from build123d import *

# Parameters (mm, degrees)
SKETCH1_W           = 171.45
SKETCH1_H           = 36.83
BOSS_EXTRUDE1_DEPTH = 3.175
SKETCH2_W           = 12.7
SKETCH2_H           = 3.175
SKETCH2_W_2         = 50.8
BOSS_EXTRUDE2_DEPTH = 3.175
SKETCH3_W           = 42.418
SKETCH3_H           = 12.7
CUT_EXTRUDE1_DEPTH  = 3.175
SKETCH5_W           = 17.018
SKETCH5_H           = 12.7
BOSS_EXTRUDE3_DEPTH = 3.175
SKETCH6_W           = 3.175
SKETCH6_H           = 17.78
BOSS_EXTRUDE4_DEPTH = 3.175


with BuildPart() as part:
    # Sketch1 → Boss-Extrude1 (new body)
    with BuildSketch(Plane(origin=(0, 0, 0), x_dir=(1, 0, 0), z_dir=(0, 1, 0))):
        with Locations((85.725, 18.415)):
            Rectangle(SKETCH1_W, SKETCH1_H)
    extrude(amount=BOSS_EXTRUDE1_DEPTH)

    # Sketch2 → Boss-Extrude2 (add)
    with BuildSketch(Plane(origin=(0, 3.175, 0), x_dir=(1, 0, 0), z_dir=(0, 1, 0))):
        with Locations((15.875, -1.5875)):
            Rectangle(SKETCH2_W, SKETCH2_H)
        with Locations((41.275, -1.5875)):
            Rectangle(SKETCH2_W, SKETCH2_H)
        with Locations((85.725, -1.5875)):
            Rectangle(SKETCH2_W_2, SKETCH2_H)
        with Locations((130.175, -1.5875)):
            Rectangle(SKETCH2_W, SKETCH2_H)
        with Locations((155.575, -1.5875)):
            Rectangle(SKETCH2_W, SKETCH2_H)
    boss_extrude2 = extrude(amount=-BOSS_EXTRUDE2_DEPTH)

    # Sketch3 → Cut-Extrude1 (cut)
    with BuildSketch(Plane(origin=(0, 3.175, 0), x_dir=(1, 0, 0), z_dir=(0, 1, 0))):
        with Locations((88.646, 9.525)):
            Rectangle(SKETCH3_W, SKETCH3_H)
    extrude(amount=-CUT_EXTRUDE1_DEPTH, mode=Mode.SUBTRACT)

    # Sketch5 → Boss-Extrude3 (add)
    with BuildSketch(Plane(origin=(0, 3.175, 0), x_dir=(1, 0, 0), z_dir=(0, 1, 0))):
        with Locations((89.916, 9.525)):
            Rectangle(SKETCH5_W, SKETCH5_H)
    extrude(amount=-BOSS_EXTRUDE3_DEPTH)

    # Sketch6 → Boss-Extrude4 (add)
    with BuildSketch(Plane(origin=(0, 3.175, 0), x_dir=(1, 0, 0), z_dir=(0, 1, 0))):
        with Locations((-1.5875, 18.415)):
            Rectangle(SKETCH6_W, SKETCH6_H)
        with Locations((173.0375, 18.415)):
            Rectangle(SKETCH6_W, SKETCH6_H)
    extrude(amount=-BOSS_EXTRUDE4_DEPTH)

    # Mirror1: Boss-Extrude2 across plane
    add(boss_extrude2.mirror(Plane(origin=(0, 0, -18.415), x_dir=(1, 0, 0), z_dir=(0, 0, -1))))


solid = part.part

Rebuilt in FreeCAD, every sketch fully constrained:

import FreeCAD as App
import Part
import Sketcher
from FreeCAD import Vector
Q = App.Units.Quantity

doc = App.newDocument("Part")
body = doc.addObject("PartDesign::Body", "Body")

# Sketch on XZ plane
sketch1 = body.newObject("Sketcher::SketchObject", "Sketch")
sketch1.AttachmentSupport = (doc.getObject("XZ_Plane"), [""])
sketch1.MapMode = "FlatFace"
sketch1.addGeometry(Part.LineSegment(Vector(0, -36.83, 0), Vector(0, 0, 0)), False)
sketch1.addGeometry(Part.LineSegment(Vector(0, 0, 0), Vector(171.45, 0, 0)), False)
sketch1.addGeometry(Part.LineSegment(Vector(171.45, 0, 0), Vector(171.45, -36.83, 0)), False)
sketch1.addGeometry(Part.LineSegment(Vector(171.45, -36.83, 0), Vector(0, -36.83, 0)), False)
sketch1.addConstraint(Sketcher.Constraint("Coincident", 0, 2, 1, 1))
sketch1.addConstraint(Sketcher.Constraint("Coincident", 1, 2, 2, 1))
sketch1.addConstraint(Sketcher.Constraint("Coincident", 2, 2, 3, 1))
sketch1.addConstraint(Sketcher.Constraint("Coincident", 3, 2, 0, 1))
sketch1.addConstraint(Sketcher.Constraint("Vertical", 0))
sketch1.addConstraint(Sketcher.Constraint("Horizontal", 1))
sketch1.addConstraint(Sketcher.Constraint("Vertical", 2))
sketch1.addConstraint(Sketcher.Constraint("Horizontal", 3))
sketch1.addConstraint(Sketcher.Constraint("Coincident", 0, 2, -1, 1))
sketch1.addConstraint(Sketcher.Constraint("DistanceX", 1, 1, 1, 2, Q("6.75 in")))
sketch1.addConstraint(Sketcher.Constraint("DistanceY", 0, 1, 0, 2, Q("1.45 in")))
pad1 = body.newObject("PartDesign::Pad", "Pad")
pad1.Profile = sketch1
pad1.Length = Q("0.125 in")
pad1.Reversed = True

# Sketch on XZ plane
sketch2 = body.newObject("Sketcher::SketchObject", "Sketch001")
sketch2.AttachmentSupport = (doc.getObject("XZ_Plane"), [""])
sketch2.MapMode = "FlatFace"
sketch2.AttachmentOffset = App.Placement(Vector(0, 0, -0.125 * 25.4), App.Rotation())
sketch2.addGeometry(Part.LineSegment(Vector(9.525, 0, 0), Vector(9.525, 3.175, 0)), False)
sketch2.addGeometry(Part.LineSegment(Vector(9.525, 3.175, 0), Vector(22.225, 3.175, 0)), False)
sketch2.addGeometry(Part.LineSegment(Vector(22.225, 3.175, 0), Vector(22.225, 0, 0)), False)
sketch2.addGeometry(Part.LineSegment(Vector(22.225, 0, 0), Vector(9.525, 0, 0)), False)
sketch2.addGeometry(Part.LineSegment(Vector(34.925, 0, 0), Vector(34.925, 3.175, 0)), False)
sketch2.addGeometry(Part.LineSegment(Vector(34.925, 3.175, 0), Vector(47.625, 3.175, 0)), False)
sketch2.addGeometry(Part.LineSegment(Vector(47.625, 3.175, 0), Vector(47.625, 0, 0)), False)
sketch2.addGeometry(Part.LineSegment(Vector(47.625, 0, 0), Vector(34.925, 0, 0)), False)
sketch2.addGeometry(Part.LineSegment(Vector(60.325, 0, 0), Vector(60.325, 3.175, 0)), False)
sketch2.addGeometry(Part.LineSegment(Vector(60.325, 3.175, 0), Vector(111.125, 3.175, 0)), False)
sketch2.addGeometry(Part.LineSegment(Vector(111.125, 3.175, 0), Vector(111.125, 0, 0)), False)
sketch2.addGeometry(Part.LineSegment(Vector(111.125, 0, 0), Vector(60.325, 0, 0)), False)
sketch2.addGeometry(Part.LineSegment(Vector(123.825, 0, 0), Vector(123.825, 3.175, 0)), False)
sketch2.addGeometry(Part.LineSegment(Vector(123.825, 3.175, 0), Vector(136.525, 3.175, 0)), False)
sketch2.addGeometry(Part.LineSegment(Vector(136.525, 3.175, 0), Vector(136.525, 0, 0)), False)
sketch2.addGeometry(Part.LineSegment(Vector(136.525, 0, 0), Vector(123.825, 0, 0)), False)
sketch2.addGeometry(Part.LineSegment(Vector(149.225, 0, 0), Vector(149.225, 3.175, 0)), False)
sketch2.addGeometry(Part.LineSegment(Vector(149.225, 3.175, 0), Vector(161.925, 3.175, 0)), False)
sketch2.addGeometry(Part.LineSegment(Vector(161.925, 3.175, 0), Vector(161.925, 0, 0)), False)
sketch2.addGeometry(Part.LineSegment(Vector(161.925, 0, 0), Vector(149.225, 0, 0)), False)
sketch2.addConstraint(Sketcher.Constraint("Coincident", 0, 2, 1, 1))
sketch2.addConstraint(Sketcher.Constraint("Coincident", 1, 2, 2, 1))
sketch2.addConstraint(Sketcher.Constraint("Coincident", 2, 2, 3, 1))
sketch2.addConstraint(Sketcher.Constraint("Coincident", 3, 2, 0, 1))
sketch2.addConstraint(Sketcher.Constraint("Coincident", 4, 2, 5, 1))
sketch2.addConstraint(Sketcher.Constraint("Coincident", 5, 2, 6, 1))
sketch2.addConstraint(Sketcher.Constraint("Coincident", 6, 2, 7, 1))
sketch2.addConstraint(Sketcher.Constraint("Coincident", 7, 2, 4, 1))
sketch2.addConstraint(Sketcher.Constraint("Coincident", 8, 2, 9, 1))
sketch2.addConstraint(Sketcher.Constraint("Coincident", 9, 2, 10, 1))
sketch2.addConstraint(Sketcher.Constraint("Coincident", 10, 2, 11, 1))
sketch2.addConstraint(Sketcher.Constraint("Coincident", 11, 2, 8, 1))
sketch2.addConstraint(Sketcher.Constraint("Coincident", 12, 2, 13, 1))
sketch2.addConstraint(Sketcher.Constraint("Coincident", 13, 2, 14, 1))
sketch2.addConstraint(Sketcher.Constraint("Coincident", 14, 2, 15, 1))
sketch2.addConstraint(Sketcher.Constraint("Coincident", 15, 2, 12, 1))
sketch2.addConstraint(Sketcher.Constraint("Coincident", 16, 2, 17, 1))
sketch2.addConstraint(Sketcher.Constraint("Coincident", 17, 2, 18, 1))
sketch2.addConstraint(Sketcher.Constraint("Coincident", 18, 2, 19, 1))
sketch2.addConstraint(Sketcher.Constraint("Coincident", 19, 2, 16, 1))
sketch2.addConstraint(Sketcher.Constraint("Vertical", 0))
sketch2.addConstraint(Sketcher.Constraint("Horizontal", 1))
sketch2.addConstraint(Sketcher.Constraint("Vertical", 2))
sketch2.addConstraint(Sketcher.Constraint("Horizontal", 3))
sketch2.addConstraint(Sketcher.Constraint("Vertical", 4))
sketch2.addConstraint(Sketcher.Constraint("Horizontal", 5))
sketch2.addConstraint(Sketcher.Constraint("Vertical", 6))
sketch2.addConstraint(Sketcher.Constraint("Horizontal", 7))
sketch2.addConstraint(Sketcher.Constraint("Vertical", 8))
sketch2.addConstraint(Sketcher.Constraint("Horizontal", 9))
sketch2.addConstraint(Sketcher.Constraint("Vertical", 10))
sketch2.addConstraint(Sketcher.Constraint("Horizontal", 11))
sketch2.addConstraint(Sketcher.Constraint("Vertical", 12))
sketch2.addConstraint(Sketcher.Constraint("Horizontal", 13))
sketch2.addConstraint(Sketcher.Constraint("Vertical", 14))
sketch2.addConstraint(Sketcher.Constraint("Horizontal", 15))
sketch2.addConstraint(Sketcher.Constraint("Vertical", 16))
sketch2.addConstraint(Sketcher.Constraint("Horizontal", 17))
sketch2.addConstraint(Sketcher.Constraint("Vertical", 18))
sketch2.addConstraint(Sketcher.Constraint("Horizontal", 19))
sketch2.addConstraint(Sketcher.Constraint("PointOnObject", 2, 2, -1))
sketch2.addConstraint(Sketcher.Constraint("PointOnObject", 6, 2, -1))
sketch2.addConstraint(Sketcher.Constraint("PointOnObject", 10, 2, -1))
sketch2.addConstraint(Sketcher.Constraint("PointOnObject", 14, 2, -1))
sketch2.addConstraint(Sketcher.Constraint("PointOnObject", 18, 2, -1))
sketch2.addConstraint(Sketcher.Constraint("Horizontal", 1, 2, 4, 2))
sketch2.addConstraint(Sketcher.Constraint("Horizontal", 5, 2, 8, 2))
sketch2.addConstraint(Sketcher.Constraint("Horizontal", 9, 2, 12, 2))
sketch2.addConstraint(Sketcher.Constraint("Horizontal", 13, 2, 16, 2))
sketch2.addConstraint(Sketcher.Constraint("Equal", 3, 5))
sketch2.addConstraint(Sketcher.Constraint("Equal", 7, 13))
sketch2.addConstraint(Sketcher.Constraint("Equal", 15, 17))
sketch2.addConstraint(Sketcher.Constraint("DistanceX", 9, 1, 9, 2, Q("2 in")))
sketch2.addConstraint(Sketcher.Constraint("DistanceX", 1, 1, 1, 2, Q("0.5 in")))
sketch2.addConstraint(Sketcher.Constraint("DistanceX", 0, 2, 4, 2, Q("1 in")))
sketch2.addConstraint(Sketcher.Constraint("DistanceX", 4, 2, 8, 2, Q("1 in")))
sketch2.addConstraint(Sketcher.Constraint("DistanceX", 5, 2, 12, 2, Q("3 in")))
sketch2.addConstraint(Sketcher.Constraint("DistanceX", 12, 2, 16, 2, Q("1 in")))
sketch2.addConstraint(Sketcher.Constraint("DistanceY", 0, 1, 0, 2, Q("0.125 in")))
sketch2.addConstraint(Sketcher.Constraint("DistanceX", -1, 1, 0, 2, Q("0.375 in")))
pad2 = body.newObject("PartDesign::Pad", "Pad001")
pad2.Profile = sketch2
pad2.Length = Q("0.125 in")

# Sketch on XZ plane
sketch3 = body.newObject("Sketcher::SketchObject", "Sketch002")
sketch3.AttachmentSupport = (doc.getObject("XZ_Plane"), [""])
sketch3.MapMode = "FlatFace"
sketch3.AttachmentOffset = App.Placement(Vector(0, 0, -0.125 * 25.4), App.Rotation())
sketch3.addGeometry(Part.LineSegment(Vector(67.437, -15.875, 0), Vector(67.437, -3.175, 0)), False)
sketch3.addGeometry(Part.LineSegment(Vector(67.437, -3.175, 0), Vector(109.855, -3.175, 0)), False)
sketch3.addGeometry(Part.LineSegment(Vector(109.855, -3.175, 0), Vector(109.855, -15.875, 0)), False)
sketch3.addGeometry(Part.LineSegment(Vector(109.855, -15.875, 0), Vector(67.437, -15.875, 0)), False)
sketch3.addConstraint(Sketcher.Constraint("Coincident", 0, 2, 1, 1))
sketch3.addConstraint(Sketcher.Constraint("Coincident", 1, 2, 2, 1))
sketch3.addConstraint(Sketcher.Constraint("Coincident", 2, 2, 3, 1))
sketch3.addConstraint(Sketcher.Constraint("Coincident", 3, 2, 0, 1))
sketch3.addConstraint(Sketcher.Constraint("Vertical", 0))
sketch3.addConstraint(Sketcher.Constraint("Horizontal", 1))
sketch3.addConstraint(Sketcher.Constraint("Vertical", 2))
sketch3.addConstraint(Sketcher.Constraint("Horizontal", 3))
sketch3.addConstraint(Sketcher.Constraint("DistanceY", 0, 1, 0, 2, Q("0.5 in")))
sketch3.addConstraint(Sketcher.Constraint("DistanceX", 1, 1, 1, 2, Q("1.67 in")))
sketch3.addConstraint(Sketcher.Constraint("DistanceX", -1, 1, 0, 2, Q("2.655 in")))
sketch3.addConstraint(Sketcher.Constraint("DistanceY", 0, 2, -1, 1, Q("0.125 in")))
pocket1 = body.newObject("PartDesign::Pocket", "Pocket")
pocket1.Profile = sketch3
pocket1.Length = Q("0.125 in")
pocket1.Reversed = True

# Sketch on XZ plane
sketch4 = body.newObject("Sketcher::SketchObject", "Sketch003")
sketch4.AttachmentSupport = (doc.getObject("XZ_Plane"), [""])
sketch4.MapMode = "FlatFace"
sketch4.AttachmentOffset = App.Placement(Vector(0, 0, -0.125 * 25.4), App.Rotation())
sketch4.addGeometry(Part.LineSegment(Vector(81.407, -15.875, 0), Vector(81.407, -3.175, 0)), False)
sketch4.addGeometry(Part.LineSegment(Vector(81.407, -3.175, 0), Vector(98.425, -3.175, 0)), False)
sketch4.addGeometry(Part.LineSegment(Vector(98.425, -3.175, 0), Vector(98.425, -15.875, 0)), False)
sketch4.addGeometry(Part.LineSegment(Vector(98.425, -15.875, 0), Vector(81.407, -15.875, 0)), False)
sketch4.addConstraint(Sketcher.Constraint("Coincident", 0, 2, 1, 1))
sketch4.addConstraint(Sketcher.Constraint("Coincident", 1, 2, 2, 1))
sketch4.addConstraint(Sketcher.Constraint("Coincident", 2, 2, 3, 1))
sketch4.addConstraint(Sketcher.Constraint("Coincident", 3, 2, 0, 1))
sketch4.addConstraint(Sketcher.Constraint("Vertical", 0))
sketch4.addConstraint(Sketcher.Constraint("Horizontal", 1))
sketch4.addConstraint(Sketcher.Constraint("Vertical", 2))
sketch4.addConstraint(Sketcher.Constraint("Horizontal", 3))
sketch4.addConstraint(Sketcher.Constraint("DistanceY", 0, 1, 0, 2, Q("0.5 in")))
sketch4.addConstraint(Sketcher.Constraint("DistanceX", 1, 1, 1, 2, Q("0.67 in")))
sketch4.addConstraint(Sketcher.Constraint("DistanceX", -1, 1, 0, 2, Q("3.205 in")))
sketch4.addConstraint(Sketcher.Constraint("DistanceY", 0, 2, -1, 1, Q("0.125 in")))
pad3 = body.newObject("PartDesign::Pad", "Pad002")
pad3.Profile = sketch4
pad3.Length = Q("0.125 in")

# Sketch on XZ plane
sketch5 = body.newObject("Sketcher::SketchObject", "Sketch004")
sketch5.AttachmentSupport = (doc.getObject("XZ_Plane"), [""])
sketch5.MapMode = "FlatFace"
sketch5.AttachmentOffset = App.Placement(Vector(0, 0, -0.125 * 25.4), App.Rotation())
sketch5.addGeometry(Part.LineSegment(Vector(-3.175, -27.305, 0), Vector(-3.175, -9.525, 0)), False)
sketch5.addGeometry(Part.LineSegment(Vector(-3.175, -9.525, 0), Vector(0, -9.525, 0)), False)
sketch5.addGeometry(Part.LineSegment(Vector(0, -9.525, 0), Vector(0, -27.305, 0)), False)
sketch5.addGeometry(Part.LineSegment(Vector(0, -27.305, 0), Vector(-3.175, -27.305, 0)), False)
sketch5.addGeometry(Part.LineSegment(Vector(171.45, -27.305, 0), Vector(171.45, -9.525, 0)), False)
sketch5.addGeometry(Part.LineSegment(Vector(171.45, -9.525, 0), Vector(174.625, -9.525, 0)), False)
sketch5.addGeometry(Part.LineSegment(Vector(174.625, -9.525, 0), Vector(174.625, -27.305, 0)), False)
sketch5.addGeometry(Part.LineSegment(Vector(174.625, -27.305, 0), Vector(171.45, -27.305, 0)), False)
sketch5.addConstraint(Sketcher.Constraint("Coincident", 0, 2, 1, 1))
sketch5.addConstraint(Sketcher.Constraint("Coincident", 1, 2, 2, 1))
sketch5.addConstraint(Sketcher.Constraint("Coincident", 2, 2, 3, 1))
sketch5.addConstraint(Sketcher.Constraint("Coincident", 3, 2, 0, 1))
sketch5.addConstraint(Sketcher.Constraint("Coincident", 4, 2, 5, 1))
sketch5.addConstraint(Sketcher.Constraint("Coincident", 5, 2, 6, 1))
sketch5.addConstraint(Sketcher.Constraint("Coincident", 6, 2, 7, 1))
sketch5.addConstraint(Sketcher.Constraint("Coincident", 7, 2, 4, 1))
sketch5.addConstraint(Sketcher.Constraint("Vertical", 0))
sketch5.addConstraint(Sketcher.Constraint("Horizontal", 1))
sketch5.addConstraint(Sketcher.Constraint("Vertical", 2))
sketch5.addConstraint(Sketcher.Constraint("Horizontal", 3))
sketch5.addConstraint(Sketcher.Constraint("Vertical", 4))
sketch5.addConstraint(Sketcher.Constraint("Horizontal", 5))
sketch5.addConstraint(Sketcher.Constraint("Vertical", 6))
sketch5.addConstraint(Sketcher.Constraint("Horizontal", 7))
sketch5.addConstraint(Sketcher.Constraint("PointOnObject", 1, 2, -2))
sketch5.addConstraint(Sketcher.Constraint("Horizontal", 1, 2, 4, 2))
sketch5.addConstraint(Sketcher.Constraint("Horizontal", 3, 2, 6, 2))
sketch5.addConstraint(Sketcher.Constraint("Equal", 3, 5))
sketch5.addConstraint(Sketcher.Constraint("DistanceY", 0, 1, 0, 2, Q("0.7 in")))
sketch5.addConstraint(Sketcher.Constraint("DistanceX", 0, 2, 5, 2, Q("7 in")))
sketch5.addConstraint(Sketcher.Constraint("DistanceX", 1, 1, 1, 2, Q("0.125 in")))
sketch5.addConstraint(Sketcher.Constraint("DistanceY", 0, 2, -1, 1, Q("0.375 in")))
pad4 = body.newObject("PartDesign::Pad", "Pad003")
pad4.Profile = sketch5
pad4.Length = Q("0.125 in")
doc.recompute()

datumplane = body.newObject("PartDesign::Plane", "DatumPlane")
datumplane.AttachmentSupport = (doc.getObject("XY_Plane"), [""])
datumplane.MapMode = "FlatFace"
datumplane.AttachmentOffset = App.Placement(Vector(0, 0, -0.725 * 25.4), App.Rotation())
mirrored = body.newObject("PartDesign::Mirrored", "Mirrored")
mirrored.Originals = [pad2]
mirrored.MirrorPlane = (datumplane, [""])
body.Tip = mirrored

doc.recompute()
